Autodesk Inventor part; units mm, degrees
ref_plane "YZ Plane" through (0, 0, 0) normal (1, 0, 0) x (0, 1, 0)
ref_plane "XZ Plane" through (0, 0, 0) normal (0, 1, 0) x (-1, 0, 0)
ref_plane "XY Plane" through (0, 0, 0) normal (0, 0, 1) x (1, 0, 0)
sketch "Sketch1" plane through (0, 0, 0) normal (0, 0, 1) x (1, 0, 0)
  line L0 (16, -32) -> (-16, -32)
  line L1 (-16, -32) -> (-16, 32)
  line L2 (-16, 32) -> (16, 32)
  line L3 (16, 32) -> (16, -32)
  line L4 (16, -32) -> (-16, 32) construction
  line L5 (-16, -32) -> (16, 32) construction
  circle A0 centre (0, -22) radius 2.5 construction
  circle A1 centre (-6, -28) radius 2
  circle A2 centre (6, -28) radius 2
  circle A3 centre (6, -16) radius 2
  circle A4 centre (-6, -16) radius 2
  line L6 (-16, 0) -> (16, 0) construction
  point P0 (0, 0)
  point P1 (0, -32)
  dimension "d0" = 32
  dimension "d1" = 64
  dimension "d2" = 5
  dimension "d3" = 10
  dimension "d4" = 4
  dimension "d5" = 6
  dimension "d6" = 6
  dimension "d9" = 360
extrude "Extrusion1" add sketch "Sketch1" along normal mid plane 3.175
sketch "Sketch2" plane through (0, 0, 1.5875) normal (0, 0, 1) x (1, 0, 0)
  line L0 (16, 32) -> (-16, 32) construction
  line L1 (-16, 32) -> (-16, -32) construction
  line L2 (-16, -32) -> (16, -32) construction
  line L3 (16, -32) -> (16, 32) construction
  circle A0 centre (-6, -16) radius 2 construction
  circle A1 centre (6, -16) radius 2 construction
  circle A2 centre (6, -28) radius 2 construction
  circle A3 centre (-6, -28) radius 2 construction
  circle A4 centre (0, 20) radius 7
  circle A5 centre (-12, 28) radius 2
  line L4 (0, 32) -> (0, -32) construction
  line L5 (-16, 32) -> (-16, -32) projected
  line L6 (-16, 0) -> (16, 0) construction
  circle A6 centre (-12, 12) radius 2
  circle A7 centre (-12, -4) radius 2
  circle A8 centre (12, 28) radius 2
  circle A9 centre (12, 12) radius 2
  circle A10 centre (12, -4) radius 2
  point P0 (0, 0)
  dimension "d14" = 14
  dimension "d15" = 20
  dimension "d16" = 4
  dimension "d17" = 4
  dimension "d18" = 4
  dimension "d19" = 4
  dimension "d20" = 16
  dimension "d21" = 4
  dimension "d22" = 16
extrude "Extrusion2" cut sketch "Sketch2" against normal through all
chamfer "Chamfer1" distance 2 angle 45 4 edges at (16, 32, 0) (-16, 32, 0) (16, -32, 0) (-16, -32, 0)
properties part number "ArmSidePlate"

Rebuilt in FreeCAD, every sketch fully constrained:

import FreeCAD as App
import Part
import Sketcher

V = App.Vector


def edges_at(feature, points):
    """Names of the edges that pass closest to the given points."""
    edges = feature.Shape.Edges
    near = lambda p: min(range(len(edges)), key=lambda i: edges[i].distToShape(Part.Vertex(*p))[0])
    return sorted({f"Edge{near(p) + 1}" for p in points})

doc = App.newDocument("Part")
body = doc.addObject("PartDesign::Body", "Body")

# Sketch on XY plane
sketch1 = body.newObject("Sketcher::SketchObject", "Sketch")
sketch1.AttachmentSupport = (doc.getObject("XY_Plane"), [""])
sketch1.MapMode = "FlatFace"
sketch1.addGeometry(Part.LineSegment(V(-16, -32, 0), V(16, -32, 0)), False)
sketch1.addGeometry(Part.LineSegment(V(16, -32, 0), V(16, 32, 0)), False)
sketch1.addGeometry(Part.LineSegment(V(16, 32, 0), V(-16, 32, 0)), False)
sketch1.addGeometry(Part.LineSegment(V(-16, 32, 0), V(-16, -32, 0)), False)
sketch1.addGeometry(Part.Circle(V(-6, -28, 0), V(0, 0, 1), 2), False)
sketch1.addGeometry(Part.Circle(V(-6, -16, 0), V(0, 0, 1), 2), False)
sketch1.addGeometry(Part.Circle(V(6, -28, 0), V(0, 0, 1), 2), False)
sketch1.addGeometry(Part.Circle(V(6, -16, 0), V(0, 0, 1), 2), False)
sketch1.addConstraint(Sketcher.Constraint("Coincident", 0, 2, 1, 1))
sketch1.addConstraint(Sketcher.Constraint("Coincident", 1, 2, 2, 1))
sketch1.addConstraint(Sketcher.Constraint("Coincident", 2, 2, 3, 1))
sketch1.addConstraint(Sketcher.Constraint("Coincident", 3, 2, 0, 1))
sketch1.addConstraint(Sketcher.Constraint("Horizontal", 0))
sketch1.addConstraint(Sketcher.Constraint("Vertical", 1))
sketch1.addConstraint(Sketcher.Constraint("Horizontal", 2))
sketch1.addConstraint(Sketcher.Constraint("Vertical", 3))
sketch1.addConstraint(Sketcher.Constraint("Equal", 4, 5))
sketch1.addConstraint(Sketcher.Constraint("Equal", 5, 6))
sketch1.addConstraint(Sketcher.Constraint("Equal", 6, 7))
sketch1.addConstraint(Sketcher.Constraint("Symmetric", 0, 2, 2, 2, -1, 1))
sketch1.addConstraint(Sketcher.Constraint("Symmetric", 4, 3, 6, 3, -2))
sketch1.addConstraint(Sketcher.Constraint("Symmetric", 5, 3, 7, 3, -2))
sketch1.addConstraint(Sketcher.Constraint("Vertical", 4, 3, 5, 3))
sketch1.addConstraint(Sketcher.Constraint("Diameter", 4, 4.0))
sketch1.addConstraint(Sketcher.Constraint("DistanceX", 0, 1, 0, 2, 32.0))
sketch1.addConstraint(Sketcher.Constraint("DistanceY", 1, 1, 1, 2, 64.0))
sketch1.addConstraint(Sketcher.Constraint("DistanceX", 4, 3, -1, 1, 6.0))
sketch1.addConstraint(Sketcher.Constraint("DistanceY", 0, 2, 6, 3, 4.0))
sketch1.addConstraint(Sketcher.Constraint("DistanceY", 5, 3, -1, 1, 16.0))
pad1 = body.newObject("PartDesign::Pad", "Pad")
pad1.Profile = sketch1
pad1.Length = 3.175
pad1.Midplane = True

# Sketch on XY plane
sketch2 = body.newObject("Sketcher::SketchObject", "Sketch001")
sketch2.AttachmentSupport = (doc.getObject("XY_Plane"), [""])
sketch2.MapMode = "FlatFace"
sketch2.AttachmentOffset = App.Placement(V(0, 0, 1.5875), App.Rotation())
sketch2.addGeometry(Part.Circle(V(0, 20, 0), V(0, 0, 1), 7), False)
sketch2.addGeometry(Part.Circle(V(-12, 28, 0), V(0, 0, 1), 2), False)
sketch2.addGeometry(Part.Circle(V(-12, 12, 0), V(0, 0, 1), 2), False)
sketch2.addGeometry(Part.Circle(V(-12, -4, 0), V(0, 0, 1), 2), False)
sketch2.addGeometry(Part.Circle(V(12, 28, 0), V(0, 0, 1), 2), False)
sketch2.addGeometry(Part.Circle(V(12, 12, 0), V(0, 0, 1), 2), False)
sketch2.addGeometry(Part.Circle(V(12, -4, 0), V(0, 0, 1), 2), False)
sketch2.addConstraint(Sketcher.Constraint("Equal", 1, 2))
sketch2.addConstraint(Sketcher.Constraint("Equal", 2, 3))
sketch2.addConstraint(Sketcher.Constraint("Equal", 3, 4))
sketch2.addConstraint(Sketcher.Constraint("Equal", 4, 5))
sketch2.addConstraint(Sketcher.Constraint("Equal", 5, 6))
sketch2.addConstraint(Sketcher.Constraint("Symmetric", 1, 3, 4, 3, -2))
sketch2.addConstraint(Sketcher.Constraint("Symmetric", 2, 3, 5, 3, -2))
sketch2.addConstraint(Sketcher.Constraint("Symmetric", 3, 3, 6, 3, -2))
sketch2.addConstraint(Sketcher.Constraint("PointOnObject", 0, 3, -2))
sketch2.addConstraint(Sketcher.Constraint("Vertical", 1, 3, 2, 3))
sketch2.addConstraint(Sketcher.Constraint("Vertical", 2, 3, 3, 3))
sketch2.addConstraint(Sketcher.Constraint("Diameter", 0, 14.0))
sketch2.addConstraint(Sketcher.Constraint("Diameter", 1, 4.0))
sketch2.addConstraint(Sketcher.Constraint("DistanceY", -1, 1, 0, 3, 20.0))
sketch2.addConstraint(Sketcher.Constraint("DistanceY", 3, 3, -1, 1, 4.0))
sketch2.addConstraint(Sketcher.Constraint("DistanceY", 2, 3, 1, 3, 16.0))
sketch2.addConstraint(Sketcher.Constraint("DistanceY", 3, 3, 2, 3, 16.0))
sketch2.addConstraint(Sketcher.Constraint("DistanceX", 1, 3, -1, 1, 12.0))
pocket1 = body.newObject("PartDesign::Pocket", "Pocket")
pocket1.Profile = sketch2
pocket1.Type = "ThroughAll"
doc.recompute()

chamfer = body.newObject("PartDesign::Chamfer", "Chamfer")
chamfer.Base = (pocket1, edges_at(pocket1, [
    (16, 32, 0),
    (-16, 32, 0),
    (16, -32, 0),
    (-16, -32, 0),
]))
chamfer.Size = 2

doc.recompute()
